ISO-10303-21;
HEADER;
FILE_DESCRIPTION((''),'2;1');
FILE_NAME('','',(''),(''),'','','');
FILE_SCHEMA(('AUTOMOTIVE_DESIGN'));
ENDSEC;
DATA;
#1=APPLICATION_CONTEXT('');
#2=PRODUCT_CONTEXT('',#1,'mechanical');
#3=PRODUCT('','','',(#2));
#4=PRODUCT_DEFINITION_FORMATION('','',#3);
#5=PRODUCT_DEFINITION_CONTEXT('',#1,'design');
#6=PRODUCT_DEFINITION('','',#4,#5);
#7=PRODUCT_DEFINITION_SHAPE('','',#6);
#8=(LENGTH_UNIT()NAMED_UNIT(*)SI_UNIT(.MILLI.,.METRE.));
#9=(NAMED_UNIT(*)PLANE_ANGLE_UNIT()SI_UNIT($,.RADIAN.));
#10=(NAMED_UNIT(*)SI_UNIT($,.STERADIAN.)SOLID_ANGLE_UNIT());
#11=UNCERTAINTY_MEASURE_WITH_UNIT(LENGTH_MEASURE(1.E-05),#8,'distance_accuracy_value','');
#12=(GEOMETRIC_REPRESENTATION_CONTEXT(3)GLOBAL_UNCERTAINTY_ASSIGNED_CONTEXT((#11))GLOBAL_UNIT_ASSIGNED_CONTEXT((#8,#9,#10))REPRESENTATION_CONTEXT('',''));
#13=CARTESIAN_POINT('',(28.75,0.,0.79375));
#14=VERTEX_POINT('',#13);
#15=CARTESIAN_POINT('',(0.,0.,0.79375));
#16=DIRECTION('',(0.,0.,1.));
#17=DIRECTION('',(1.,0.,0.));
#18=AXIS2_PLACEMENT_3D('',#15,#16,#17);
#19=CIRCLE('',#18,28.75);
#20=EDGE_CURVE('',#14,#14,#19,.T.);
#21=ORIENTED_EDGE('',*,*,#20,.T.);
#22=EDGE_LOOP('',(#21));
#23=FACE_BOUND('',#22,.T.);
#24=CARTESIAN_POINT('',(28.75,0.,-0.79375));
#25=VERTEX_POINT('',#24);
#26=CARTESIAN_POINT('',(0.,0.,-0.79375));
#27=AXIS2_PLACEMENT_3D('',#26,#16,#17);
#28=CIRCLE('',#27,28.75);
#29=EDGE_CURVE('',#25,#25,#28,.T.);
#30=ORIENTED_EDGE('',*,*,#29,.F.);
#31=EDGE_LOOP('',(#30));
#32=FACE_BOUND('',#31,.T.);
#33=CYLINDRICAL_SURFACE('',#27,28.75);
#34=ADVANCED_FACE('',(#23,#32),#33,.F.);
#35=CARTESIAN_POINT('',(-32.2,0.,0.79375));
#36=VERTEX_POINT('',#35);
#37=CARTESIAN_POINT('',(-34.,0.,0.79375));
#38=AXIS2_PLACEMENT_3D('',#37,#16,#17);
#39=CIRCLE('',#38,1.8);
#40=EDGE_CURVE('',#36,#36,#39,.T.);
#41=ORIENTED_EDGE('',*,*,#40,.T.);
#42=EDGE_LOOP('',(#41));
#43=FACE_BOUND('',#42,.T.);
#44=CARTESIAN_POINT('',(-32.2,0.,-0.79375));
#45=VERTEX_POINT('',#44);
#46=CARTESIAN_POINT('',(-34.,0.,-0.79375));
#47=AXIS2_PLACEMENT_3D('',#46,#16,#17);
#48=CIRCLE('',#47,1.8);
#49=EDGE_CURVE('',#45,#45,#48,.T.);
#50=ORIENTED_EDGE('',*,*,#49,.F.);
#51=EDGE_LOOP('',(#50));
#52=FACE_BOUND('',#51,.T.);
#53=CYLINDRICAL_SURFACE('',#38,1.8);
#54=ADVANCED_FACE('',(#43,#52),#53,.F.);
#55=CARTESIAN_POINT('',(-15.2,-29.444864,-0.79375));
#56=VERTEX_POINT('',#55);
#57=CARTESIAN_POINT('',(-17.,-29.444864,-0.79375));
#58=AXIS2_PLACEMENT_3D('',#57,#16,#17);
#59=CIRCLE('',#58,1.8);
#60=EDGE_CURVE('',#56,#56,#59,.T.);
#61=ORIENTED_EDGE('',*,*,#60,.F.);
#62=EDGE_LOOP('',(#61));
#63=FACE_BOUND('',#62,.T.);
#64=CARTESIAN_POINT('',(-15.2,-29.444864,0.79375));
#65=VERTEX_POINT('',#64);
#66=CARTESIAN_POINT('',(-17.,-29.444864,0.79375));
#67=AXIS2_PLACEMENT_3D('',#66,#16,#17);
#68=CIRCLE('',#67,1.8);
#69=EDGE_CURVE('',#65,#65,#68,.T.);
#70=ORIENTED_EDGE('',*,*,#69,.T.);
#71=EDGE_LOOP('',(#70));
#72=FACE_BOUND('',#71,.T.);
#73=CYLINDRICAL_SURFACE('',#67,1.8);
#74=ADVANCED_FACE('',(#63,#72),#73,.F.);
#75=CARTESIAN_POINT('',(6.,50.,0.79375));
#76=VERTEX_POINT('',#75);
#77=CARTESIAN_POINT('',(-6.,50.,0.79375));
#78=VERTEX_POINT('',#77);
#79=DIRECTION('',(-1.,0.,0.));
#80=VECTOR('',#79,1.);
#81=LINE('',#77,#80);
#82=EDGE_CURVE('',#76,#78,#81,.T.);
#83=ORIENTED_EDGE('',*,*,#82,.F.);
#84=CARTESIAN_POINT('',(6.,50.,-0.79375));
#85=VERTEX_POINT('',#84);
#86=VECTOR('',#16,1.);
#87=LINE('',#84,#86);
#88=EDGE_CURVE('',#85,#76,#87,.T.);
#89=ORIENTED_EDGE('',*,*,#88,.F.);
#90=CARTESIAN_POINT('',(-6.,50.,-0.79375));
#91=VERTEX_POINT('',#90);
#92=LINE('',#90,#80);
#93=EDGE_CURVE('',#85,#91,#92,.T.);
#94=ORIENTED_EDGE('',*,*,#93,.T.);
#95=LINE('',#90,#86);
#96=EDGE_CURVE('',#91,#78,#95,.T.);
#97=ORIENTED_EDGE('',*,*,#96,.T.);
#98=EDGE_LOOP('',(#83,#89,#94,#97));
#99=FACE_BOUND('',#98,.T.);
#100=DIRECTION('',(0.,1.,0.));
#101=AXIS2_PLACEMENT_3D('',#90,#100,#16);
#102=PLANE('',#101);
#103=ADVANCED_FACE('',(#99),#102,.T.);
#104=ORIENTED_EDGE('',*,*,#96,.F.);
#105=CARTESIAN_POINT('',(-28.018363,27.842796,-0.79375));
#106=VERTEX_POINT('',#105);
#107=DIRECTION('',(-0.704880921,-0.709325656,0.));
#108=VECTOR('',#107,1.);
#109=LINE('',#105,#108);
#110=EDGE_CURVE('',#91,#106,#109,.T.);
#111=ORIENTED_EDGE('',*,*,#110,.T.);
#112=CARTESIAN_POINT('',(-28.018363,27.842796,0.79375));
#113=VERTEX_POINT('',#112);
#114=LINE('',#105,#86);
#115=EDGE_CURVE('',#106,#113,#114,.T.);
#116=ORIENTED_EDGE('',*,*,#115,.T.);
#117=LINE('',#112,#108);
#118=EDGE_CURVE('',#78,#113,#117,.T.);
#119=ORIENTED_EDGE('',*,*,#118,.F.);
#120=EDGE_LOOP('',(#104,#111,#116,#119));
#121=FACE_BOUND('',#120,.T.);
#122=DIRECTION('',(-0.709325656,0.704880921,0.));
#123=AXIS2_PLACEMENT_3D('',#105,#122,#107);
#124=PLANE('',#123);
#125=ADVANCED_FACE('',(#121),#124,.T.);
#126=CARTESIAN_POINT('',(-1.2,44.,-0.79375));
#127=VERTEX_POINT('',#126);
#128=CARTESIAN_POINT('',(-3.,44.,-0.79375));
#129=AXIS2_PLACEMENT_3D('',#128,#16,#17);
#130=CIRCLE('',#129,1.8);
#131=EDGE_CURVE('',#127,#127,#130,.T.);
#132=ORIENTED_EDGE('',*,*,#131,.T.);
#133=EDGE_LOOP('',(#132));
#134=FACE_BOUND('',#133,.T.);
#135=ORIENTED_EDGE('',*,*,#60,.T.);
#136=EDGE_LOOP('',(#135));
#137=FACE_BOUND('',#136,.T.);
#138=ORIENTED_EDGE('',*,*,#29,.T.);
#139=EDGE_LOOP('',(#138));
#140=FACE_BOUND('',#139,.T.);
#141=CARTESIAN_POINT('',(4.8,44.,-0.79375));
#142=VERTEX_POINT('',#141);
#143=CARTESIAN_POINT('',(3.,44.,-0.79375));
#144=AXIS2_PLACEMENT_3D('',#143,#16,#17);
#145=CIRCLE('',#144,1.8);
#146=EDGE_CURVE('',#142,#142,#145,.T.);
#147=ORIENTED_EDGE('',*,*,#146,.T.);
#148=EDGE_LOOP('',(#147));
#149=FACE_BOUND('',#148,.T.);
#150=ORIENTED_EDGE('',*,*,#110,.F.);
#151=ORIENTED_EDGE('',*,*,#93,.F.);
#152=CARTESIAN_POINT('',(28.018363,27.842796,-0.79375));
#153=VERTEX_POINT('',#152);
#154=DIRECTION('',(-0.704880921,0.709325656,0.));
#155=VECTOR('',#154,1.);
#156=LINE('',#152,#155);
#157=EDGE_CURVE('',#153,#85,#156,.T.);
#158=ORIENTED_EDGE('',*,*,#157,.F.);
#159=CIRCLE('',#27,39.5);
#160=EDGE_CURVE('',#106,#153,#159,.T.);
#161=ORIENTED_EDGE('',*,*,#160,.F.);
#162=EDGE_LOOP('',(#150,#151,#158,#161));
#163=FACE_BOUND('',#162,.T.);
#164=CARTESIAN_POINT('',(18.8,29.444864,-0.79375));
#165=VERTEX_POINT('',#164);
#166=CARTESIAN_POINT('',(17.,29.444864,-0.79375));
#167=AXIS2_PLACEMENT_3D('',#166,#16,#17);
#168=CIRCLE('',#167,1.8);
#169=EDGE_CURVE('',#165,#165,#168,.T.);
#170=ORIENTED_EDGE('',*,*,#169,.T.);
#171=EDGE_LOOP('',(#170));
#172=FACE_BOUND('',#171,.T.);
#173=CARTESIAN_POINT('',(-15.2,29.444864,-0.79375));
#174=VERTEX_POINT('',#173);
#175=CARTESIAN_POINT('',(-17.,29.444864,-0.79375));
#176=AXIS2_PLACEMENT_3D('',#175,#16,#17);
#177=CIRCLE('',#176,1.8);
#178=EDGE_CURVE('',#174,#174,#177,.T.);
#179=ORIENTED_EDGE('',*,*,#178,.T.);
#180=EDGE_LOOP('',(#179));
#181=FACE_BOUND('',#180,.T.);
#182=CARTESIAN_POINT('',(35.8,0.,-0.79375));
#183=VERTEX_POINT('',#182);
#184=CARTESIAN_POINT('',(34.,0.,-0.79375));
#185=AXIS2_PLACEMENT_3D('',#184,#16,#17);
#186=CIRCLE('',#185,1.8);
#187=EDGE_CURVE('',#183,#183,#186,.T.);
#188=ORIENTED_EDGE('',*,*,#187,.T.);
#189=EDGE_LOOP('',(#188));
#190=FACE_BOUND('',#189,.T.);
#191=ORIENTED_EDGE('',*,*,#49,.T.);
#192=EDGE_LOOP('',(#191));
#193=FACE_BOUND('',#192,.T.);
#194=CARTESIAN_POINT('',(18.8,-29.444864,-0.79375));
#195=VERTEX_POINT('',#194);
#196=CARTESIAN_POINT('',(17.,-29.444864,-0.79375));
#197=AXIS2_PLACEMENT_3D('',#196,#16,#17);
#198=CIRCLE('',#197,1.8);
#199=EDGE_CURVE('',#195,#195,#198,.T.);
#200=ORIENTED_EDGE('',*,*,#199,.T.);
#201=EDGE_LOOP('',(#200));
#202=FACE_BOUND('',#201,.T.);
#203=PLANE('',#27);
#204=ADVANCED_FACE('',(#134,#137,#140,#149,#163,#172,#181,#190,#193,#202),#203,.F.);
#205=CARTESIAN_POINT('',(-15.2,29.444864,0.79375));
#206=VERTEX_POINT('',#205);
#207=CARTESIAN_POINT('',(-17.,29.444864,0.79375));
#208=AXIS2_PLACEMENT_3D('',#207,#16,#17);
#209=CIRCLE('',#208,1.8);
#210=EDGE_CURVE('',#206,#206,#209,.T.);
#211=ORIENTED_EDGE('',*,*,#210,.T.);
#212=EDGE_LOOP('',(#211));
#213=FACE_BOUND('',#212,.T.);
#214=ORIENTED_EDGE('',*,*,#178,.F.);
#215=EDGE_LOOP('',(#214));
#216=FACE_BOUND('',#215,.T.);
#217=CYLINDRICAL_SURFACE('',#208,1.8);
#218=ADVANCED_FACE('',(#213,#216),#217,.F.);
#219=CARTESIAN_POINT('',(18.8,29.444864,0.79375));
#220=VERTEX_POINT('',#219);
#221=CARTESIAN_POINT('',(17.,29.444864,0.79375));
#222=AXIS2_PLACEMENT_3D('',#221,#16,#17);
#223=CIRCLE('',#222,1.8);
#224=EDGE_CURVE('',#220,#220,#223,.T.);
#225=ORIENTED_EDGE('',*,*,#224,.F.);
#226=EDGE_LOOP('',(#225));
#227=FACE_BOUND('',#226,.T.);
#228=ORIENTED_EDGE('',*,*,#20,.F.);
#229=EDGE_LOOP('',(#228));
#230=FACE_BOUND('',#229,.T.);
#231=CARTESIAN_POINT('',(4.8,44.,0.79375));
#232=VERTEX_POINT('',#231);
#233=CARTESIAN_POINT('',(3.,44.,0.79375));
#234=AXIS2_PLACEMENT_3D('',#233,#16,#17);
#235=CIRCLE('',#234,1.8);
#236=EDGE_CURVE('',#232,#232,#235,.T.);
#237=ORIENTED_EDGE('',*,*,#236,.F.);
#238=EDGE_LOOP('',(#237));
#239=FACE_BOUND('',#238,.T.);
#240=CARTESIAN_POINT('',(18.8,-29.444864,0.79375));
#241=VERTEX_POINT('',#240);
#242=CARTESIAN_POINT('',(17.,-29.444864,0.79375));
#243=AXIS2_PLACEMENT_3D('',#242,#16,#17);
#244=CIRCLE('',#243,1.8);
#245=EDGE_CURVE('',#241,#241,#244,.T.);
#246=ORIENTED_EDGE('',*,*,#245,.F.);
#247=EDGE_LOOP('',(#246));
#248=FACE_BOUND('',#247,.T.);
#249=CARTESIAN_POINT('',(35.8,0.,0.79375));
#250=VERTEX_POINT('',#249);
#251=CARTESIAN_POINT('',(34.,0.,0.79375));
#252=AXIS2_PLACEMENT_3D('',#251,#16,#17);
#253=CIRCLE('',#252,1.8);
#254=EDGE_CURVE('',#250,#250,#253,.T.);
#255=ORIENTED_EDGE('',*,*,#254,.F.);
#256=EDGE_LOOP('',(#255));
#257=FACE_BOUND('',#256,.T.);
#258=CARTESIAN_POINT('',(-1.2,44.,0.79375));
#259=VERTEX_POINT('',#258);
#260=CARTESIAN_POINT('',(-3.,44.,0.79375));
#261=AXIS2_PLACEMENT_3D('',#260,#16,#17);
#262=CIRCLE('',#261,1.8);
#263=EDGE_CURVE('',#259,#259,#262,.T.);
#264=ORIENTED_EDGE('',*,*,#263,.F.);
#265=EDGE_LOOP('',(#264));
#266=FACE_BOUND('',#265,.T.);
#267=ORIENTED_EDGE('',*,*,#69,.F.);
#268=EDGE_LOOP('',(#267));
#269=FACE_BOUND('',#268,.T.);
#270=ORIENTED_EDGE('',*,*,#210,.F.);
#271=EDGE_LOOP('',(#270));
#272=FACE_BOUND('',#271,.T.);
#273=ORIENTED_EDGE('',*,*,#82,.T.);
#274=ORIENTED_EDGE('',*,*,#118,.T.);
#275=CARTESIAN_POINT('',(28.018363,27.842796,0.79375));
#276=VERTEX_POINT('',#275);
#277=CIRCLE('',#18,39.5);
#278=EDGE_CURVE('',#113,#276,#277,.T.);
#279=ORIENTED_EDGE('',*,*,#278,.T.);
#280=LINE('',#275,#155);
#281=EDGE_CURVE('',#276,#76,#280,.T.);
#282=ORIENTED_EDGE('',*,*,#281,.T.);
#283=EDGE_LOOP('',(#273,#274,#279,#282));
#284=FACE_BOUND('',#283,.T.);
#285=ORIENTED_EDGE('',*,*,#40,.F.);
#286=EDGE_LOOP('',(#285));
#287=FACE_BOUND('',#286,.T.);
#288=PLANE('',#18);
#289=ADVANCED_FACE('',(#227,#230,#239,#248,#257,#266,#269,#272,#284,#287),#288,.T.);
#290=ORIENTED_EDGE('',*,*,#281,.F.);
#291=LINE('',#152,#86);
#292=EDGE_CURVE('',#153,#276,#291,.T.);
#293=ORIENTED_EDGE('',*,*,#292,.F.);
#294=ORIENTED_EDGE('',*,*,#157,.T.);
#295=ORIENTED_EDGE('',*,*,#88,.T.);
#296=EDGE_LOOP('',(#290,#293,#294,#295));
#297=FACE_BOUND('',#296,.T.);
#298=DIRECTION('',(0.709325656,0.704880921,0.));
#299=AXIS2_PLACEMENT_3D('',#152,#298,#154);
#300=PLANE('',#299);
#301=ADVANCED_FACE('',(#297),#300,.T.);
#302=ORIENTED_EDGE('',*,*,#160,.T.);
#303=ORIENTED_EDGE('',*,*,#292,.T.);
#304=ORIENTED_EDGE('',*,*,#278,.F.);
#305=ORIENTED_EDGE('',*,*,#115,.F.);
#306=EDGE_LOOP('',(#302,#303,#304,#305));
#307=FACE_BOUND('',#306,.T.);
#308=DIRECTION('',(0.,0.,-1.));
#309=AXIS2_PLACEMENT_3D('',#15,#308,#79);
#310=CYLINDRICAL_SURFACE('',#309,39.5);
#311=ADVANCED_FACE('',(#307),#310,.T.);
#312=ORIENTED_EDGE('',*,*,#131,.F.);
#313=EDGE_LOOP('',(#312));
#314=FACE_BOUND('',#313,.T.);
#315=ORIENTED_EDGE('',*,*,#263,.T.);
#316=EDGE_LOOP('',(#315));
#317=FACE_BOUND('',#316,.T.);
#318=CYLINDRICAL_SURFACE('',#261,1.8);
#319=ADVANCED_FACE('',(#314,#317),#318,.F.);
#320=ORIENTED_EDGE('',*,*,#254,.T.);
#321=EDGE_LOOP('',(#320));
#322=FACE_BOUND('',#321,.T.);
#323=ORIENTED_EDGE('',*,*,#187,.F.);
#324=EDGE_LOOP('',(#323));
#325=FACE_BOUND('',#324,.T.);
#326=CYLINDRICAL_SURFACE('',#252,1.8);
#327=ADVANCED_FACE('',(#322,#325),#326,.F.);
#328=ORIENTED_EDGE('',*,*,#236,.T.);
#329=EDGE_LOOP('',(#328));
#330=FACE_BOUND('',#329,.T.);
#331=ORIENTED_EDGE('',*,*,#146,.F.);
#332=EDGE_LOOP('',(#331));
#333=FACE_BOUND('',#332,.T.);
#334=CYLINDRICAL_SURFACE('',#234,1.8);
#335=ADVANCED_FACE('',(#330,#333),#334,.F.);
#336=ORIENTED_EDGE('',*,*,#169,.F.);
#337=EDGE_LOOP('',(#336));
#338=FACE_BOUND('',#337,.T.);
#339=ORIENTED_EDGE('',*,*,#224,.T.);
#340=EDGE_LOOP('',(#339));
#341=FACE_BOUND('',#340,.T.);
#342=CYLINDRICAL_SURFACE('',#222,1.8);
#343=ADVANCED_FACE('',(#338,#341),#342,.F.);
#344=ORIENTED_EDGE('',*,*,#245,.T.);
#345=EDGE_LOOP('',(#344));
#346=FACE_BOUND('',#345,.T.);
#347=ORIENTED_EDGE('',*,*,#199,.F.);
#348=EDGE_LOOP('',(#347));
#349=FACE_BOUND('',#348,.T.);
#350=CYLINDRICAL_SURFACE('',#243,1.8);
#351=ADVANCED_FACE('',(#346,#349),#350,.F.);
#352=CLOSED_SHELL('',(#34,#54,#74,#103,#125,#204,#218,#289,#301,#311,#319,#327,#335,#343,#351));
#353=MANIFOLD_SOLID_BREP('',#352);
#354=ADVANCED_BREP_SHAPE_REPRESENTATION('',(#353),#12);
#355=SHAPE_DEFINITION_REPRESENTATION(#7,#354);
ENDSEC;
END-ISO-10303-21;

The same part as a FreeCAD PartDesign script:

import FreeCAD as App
import Part
import Sketcher
from FreeCAD import Vector


def add_polygon(sketch, points):
    """Adds a closed chain of lines whose ends are joined by coincident constraints."""
    first, n = sketch.GeometryCount, len(points)
    for a, b in zip(points, points[1:] + points[:1]):
        sketch.addGeometry(Part.LineSegment(App.Vector(*a, 0), App.Vector(*b, 0)), False)
    for i in range(n):
        sketch.addConstraint(Sketcher.Constraint("Coincident", first + i, 2, first + (i + 1) % n, 1))

doc = App.newDocument("Part")
body = doc.addObject("PartDesign::Body", "Body")

# Sketch on XY plane
sketch1 = body.newObject("Sketcher::SketchObject", "Sketch")
sketch1.AttachmentSupport = (doc.getObject("XY_Plane"), [""])
sketch1.MapMode = "FlatFace"
sketch1.addGeometry(Part.Circle(Vector(0, 0, 0), Vector(0, 0, 1), 40), False)
sketch1.addConstraint([
    Sketcher.Constraint("Coincident", 0, 3, -1, 1),
    Sketcher.Constraint("Diameter", 0, 79.0),
])
pad1 = body.newObject("PartDesign::Pad", "Pad")
pad1.Profile = sketch1
pad1.Length = 1.5875
pad1.Midplane = True

# Sketch on XY plane
sketch2 = body.newObject("Sketcher::SketchObject", "Sketch001")
sketch2.AttachmentSupport = (doc.getObject("XY_Plane"), [""])
sketch2.MapMode = "FlatFace"
sketch2.AttachmentOffset = App.Placement(Vector(0, 0, 0.79375), App.Rotation())
add_polygon(sketch2, [(-6, 50), (-28, 28), (28, 28), (6, 50)])  # lines 0-3
sketch2.addConstraint([
    Sketcher.Constraint("Horizontal", 1),
    Sketcher.Constraint("Horizontal", 3),
    Sketcher.Constraint("Equal", 0, 2),
    Sketcher.Constraint("DistanceX", 3, 2, 3, 1, 12.0),
    Sketcher.Constraint("DistanceX", -1, 1, 2, 2, 6.0),
    Sketcher.Constraint("DistanceY", -1, 1, 2, 2, 50.0),
    Sketcher.Constraint("DistanceX", 1, 1, 1, 2, 56.036727),
    Sketcher.Constraint("Distance", 0, 31.236997),
])
pad2 = body.newObject("PartDesign::Pad", "Pad001")
pad2.Profile = sketch2
pad2.Type = "UpToLast"
pad2.Reversed = True

# Sketch on XY plane
sketch3 = body.newObject("Sketcher::SketchObject", "Sketch002")
sketch3.AttachmentSupport = (doc.getObject("XY_Plane"), [""])
sketch3.MapMode = "FlatFace"
sketch3.AttachmentOffset = App.Placement(Vector(0, 0, 0.79375), App.Rotation())
sketch3.addGeometry(Part.Circle(Vector(0, 0, 0), Vector(0, 0, 1), 29), False)
sketch3.addConstraint([
    Sketcher.Constraint("Coincident", 0, 3, -1, 1),
    Sketcher.Constraint("Diameter", 0, 57.5),
])
pocket1 = body.newObject("PartDesign::Pocket", "Pocket")
pocket1.Profile = sketch3
pocket1.Type = "ThroughAll"

# Sketch on XY plane
sketch4 = body.newObject("Sketcher::SketchObject", "Sketch003")
sketch4.AttachmentSupport = (doc.getObject("XY_Plane"), [""])
sketch4.MapMode = "FlatFace"
sketch4.AttachmentOffset = App.Placement(Vector(0, 0, 0.79375), App.Rotation())
sketch4.addGeometry(Part.Circle(Vector(17, -29.4, 0), Vector(0, 0, 1), 1.8), False)
sketch4.addConstraint([
    Sketcher.Constraint("Diameter", 0, 3.6),
    Sketcher.Constraint("DistanceX", -1, 1, 0, 3, 17.0),
    Sketcher.Constraint("DistanceY", 0, 3, -1, 1, 29.444864),
])
doc.recompute()
hole = body.newObject("PartDesign::Hole", "Hole")
hole.Profile = sketch4
hole.ThreadType = "None"
hole.Diameter = 3.6
hole.DepthType = "ThroughAll"
doc.recompute()

polarpattern = body.newObject("PartDesign::PolarPattern", "PolarPattern")
polarpattern.Originals = [hole]
polarpattern.Axis = (doc.getObject("Z_Axis"), [""])
polarpattern.Angle = 360
polarpattern.Occurrences = 6
body.Tip = polarpattern

# Sketch on XY plane
sketch5 = body.newObject("Sketcher::SketchObject", "Sketch004")
sketch5.AttachmentSupport = (doc.getObject("XY_Plane"), [""])
sketch5.MapMode = "FlatFace"
sketch5.AttachmentOffset = App.Placement(Vector(0, 0, 0.79375), App.Rotation())
sketch5.addGeometry([
    Part.Circle(Vector(3, 44, 0), Vector(0, 0, 1), 1.8),
    Part.Circle(Vector(-3, 44, 0), Vector(0, 0, 1), 1.8),
], False)
sketch5.addConstraint([
    Sketcher.Constraint("Equal", 0, 1),
    Sketcher.Constraint("Symmetric", 0, 3, 1, 3, -2),
    Sketcher.Constraint("Diameter", 0, 3.6),
    Sketcher.Constraint("DistanceX", -1, 1, 0, 3, 3.0),
    Sketcher.Constraint("DistanceY", -1, 1, 0, 3, 44.0),
])
doc.recompute()
hole2 = body.newObject("PartDesign::Hole", "Hole001")
hole2.Profile = sketch5
hole2.ThreadType = "None"
hole2.Diameter = 3.6
hole2.DepthType = "Dimension"
hole2.Depth = 10
hole2.DrillPoint = "Angled"
hole2.DrillPointAngle = 118

doc.recompute()
